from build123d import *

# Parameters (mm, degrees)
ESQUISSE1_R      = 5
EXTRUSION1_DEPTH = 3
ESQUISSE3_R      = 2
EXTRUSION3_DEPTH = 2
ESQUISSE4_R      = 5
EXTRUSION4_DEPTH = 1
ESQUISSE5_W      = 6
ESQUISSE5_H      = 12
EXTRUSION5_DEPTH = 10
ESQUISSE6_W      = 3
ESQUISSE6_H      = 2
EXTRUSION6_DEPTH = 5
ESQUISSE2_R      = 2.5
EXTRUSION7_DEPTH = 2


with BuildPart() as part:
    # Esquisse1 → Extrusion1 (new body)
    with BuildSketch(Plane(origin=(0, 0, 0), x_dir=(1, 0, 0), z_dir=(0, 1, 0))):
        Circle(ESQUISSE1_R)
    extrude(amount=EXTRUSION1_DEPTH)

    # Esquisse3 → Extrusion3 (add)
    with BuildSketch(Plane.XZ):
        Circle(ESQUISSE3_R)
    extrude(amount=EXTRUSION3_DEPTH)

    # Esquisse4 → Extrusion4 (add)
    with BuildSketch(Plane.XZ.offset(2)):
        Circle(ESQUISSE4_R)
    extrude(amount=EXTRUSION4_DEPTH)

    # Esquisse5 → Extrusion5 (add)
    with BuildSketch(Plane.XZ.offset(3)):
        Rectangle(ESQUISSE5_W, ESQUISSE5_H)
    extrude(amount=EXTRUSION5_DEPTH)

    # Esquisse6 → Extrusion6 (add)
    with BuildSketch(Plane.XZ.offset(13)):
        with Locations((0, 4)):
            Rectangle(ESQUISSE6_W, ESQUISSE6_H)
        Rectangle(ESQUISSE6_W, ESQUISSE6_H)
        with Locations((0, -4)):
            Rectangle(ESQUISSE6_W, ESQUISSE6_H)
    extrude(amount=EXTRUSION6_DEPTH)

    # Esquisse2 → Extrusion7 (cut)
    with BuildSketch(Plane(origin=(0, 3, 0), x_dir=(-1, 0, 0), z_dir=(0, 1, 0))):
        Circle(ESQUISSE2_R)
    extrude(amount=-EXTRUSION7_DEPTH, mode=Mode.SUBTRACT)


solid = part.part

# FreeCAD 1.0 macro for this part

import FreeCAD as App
import Part
import Sketcher

doc = App.newDocument("Part")
params = doc.addObject("Spreadsheet::Sheet", "Params")
for row, (alias, value) in enumerate([
    ("sketch1_diameter", "10 mm"),
    ("pad1_length", "3 mm"),
    ("sketch2_diameter", "4 mm"),
    ("pad2_length", "2 mm"),
    ("sketch3_diameter", "10 mm"),
    ("pad3_length", "1 mm"),
    ("sketch4_width", "6 mm"),
    ("sketch4_height", "12 mm"),
    ("pad4_length", "10 mm"),
    ("sketch5_width", "3 mm"),
    ("sketch5_height", "2 mm"),
    ("pad5_length", "5 mm"),
    ("sketch6_diameter", "5 mm"),
    ("pocket1_length", "2 mm"),
], start=1):
    params.set(f"A{row}", alias)
    params.set(f"B{row}", "=" + value)
    params.setAlias(f"B{row}", alias)

body = doc.addObject("PartDesign::Body", "Body")

sketch1 = doc.addObject("Sketcher::SketchObject", "Sketch")
body.addObject(sketch1)
sketch1.AttachmentSupport = (doc.XZ_Plane, [""])
sketch1.MapMode = "FlatFace"
sketch1.addGeometry(Part.Circle(App.Vector(0, 0, 0), App.Vector(0, 0, 1), 5), False)
sketch1.addConstraint(Sketcher.Constraint("Coincident", 0, 3, -1, 1))
sketch1.addConstraint(Sketcher.Constraint("Diameter", 0, 10.0))
sketch1.setExpression("Constraints[1]", "Params.sketch1_diameter")
pad1 = doc.addObject("PartDesign::Pad", "Pad")
body.addObject(pad1)
pad1.Profile = sketch1
pad1.setExpression("Length", "Params.pad1_length")
pad1.Reversed = True

sketch2 = doc.addObject("Sketcher::SketchObject", "Sketch001")
body.addObject(sketch2)
sketch2.AttachmentSupport = (doc.XZ_Plane, [""])
sketch2.MapMode = "FlatFace"
sketch2.addGeometry(Part.Circle(App.Vector(0, 0, 0), App.Vector(0, 0, 1), 2), False)
sketch2.addConstraint(Sketcher.Constraint("Coincident", 0, 3, -1, 1))
sketch2.addConstraint(Sketcher.Constraint("Diameter", 0, 4.0))
sketch2.setExpression("Constraints[1]", "Params.sketch2_diameter")
pad2 = doc.addObject("PartDesign::Pad", "Pad001")
body.addObject(pad2)
pad2.Profile = sketch2
pad2.setExpression("Length", "Params.pad2_length")

sketch3 = doc.addObject("Sketcher::SketchObject", "Sketch002")
body.addObject(sketch3)
sketch3.AttachmentSupport = (doc.XZ_Plane, [""])
sketch3.MapMode = "FlatFace"
sketch3.AttachmentOffset = App.Placement(App.Vector(0, 0, 2), App.Rotation())
sketch3.addGeometry(Part.Circle(App.Vector(0, 0, 0), App.Vector(0, 0, 1), 5), False)
sketch3.addConstraint(Sketcher.Constraint("Coincident", 0, 3, -1, 1))
sketch3.addConstraint(Sketcher.Constraint("Diameter", 0, 10.0))
sketch3.setExpression("Constraints[1]", "Params.sketch3_diameter")
pad3 = doc.addObject("PartDesign::Pad", "Pad002")
body.addObject(pad3)
pad3.Profile = sketch3
pad3.setExpression("Length", "Params.pad3_length")

sketch4 = doc.addObject("Sketcher::SketchObject", "Sketch003")
body.addObject(sketch4)
sketch4.AttachmentSupport = (doc.XZ_Plane, [""])
sketch4.MapMode = "FlatFace"
sketch4.AttachmentOffset = App.Placement(App.Vector(0, 0, 3), App.Rotation())
sketch4.addGeometry(Part.LineSegment(App.Vector(-3, 6, 0), App.Vector(-3, -6, 0)), False)
sketch4.addGeometry(Part.LineSegment(App.Vector(-3, -6, 0), App.Vector(3, -6, 0)), False)
sketch4.addGeometry(Part.LineSegment(App.Vector(3, -6, 0), App.Vector(3, 6, 0)), False)
sketch4.addGeometry(Part.LineSegment(App.Vector(3, 6, 0), App.Vector(-3, 6, 0)), False)
sketch4.addConstraint(Sketcher.Constraint("Coincident", 0, 2, 1, 1))
sketch4.addConstraint(Sketcher.Constraint("Coincident", 1, 2, 2, 1))
sketch4.addConstraint(Sketcher.Constraint("Coincident", 2, 2, 3, 1))
sketch4.addConstraint(Sketcher.Constraint("Coincident", 3, 2, 0, 1))
sketch4.addConstraint(Sketcher.Constraint("Vertical", 0))
sketch4.addConstraint(Sketcher.Constraint("Horizontal", 1))
sketch4.addConstraint(Sketcher.Constraint("Vertical", 2))
sketch4.addConstraint(Sketcher.Constraint("Horizontal", 3))
sketch4.addConstraint(Sketcher.Constraint("Symmetric", 0, 2, 2, 2, -1, 1))
sketch4.addConstraint(Sketcher.Constraint("DistanceX", 1, 1, 1, 2, 6.0))
sketch4.addConstraint(Sketcher.Constraint("DistanceY", 0, 2, 0, 1, 12.0))
sketch4.setExpression("Constraints[9]", "Params.sketch4_width")
sketch4.setExpression("Constraints[10]", "Params.sketch4_height")
pad4 = doc.addObject("PartDesign::Pad", "Pad003")
body.addObject(pad4)
pad4.Profile = sketch4
pad4.setExpression("Length", "Params.pad4_length")

sketch5 = doc.addObject("Sketcher::SketchObject", "Sketch004")
body.addObject(sketch5)
sketch5.AttachmentSupport = (doc.XZ_Plane, [""])
sketch5.MapMode = "FlatFace"
sketch5.AttachmentOffset = App.Placement(App.Vector(0, 0, 13), App.Rotation())
sketch5.addGeometry(Part.LineSegment(App.Vector(-1.5, 5, 0), App.Vector(-1.5, 3, 0)), False)
sketch5.addGeometry(Part.LineSegment(App.Vector(-1.5, 3, 0), App.Vector(1.5, 3, 0)), False)
sketch5.addGeometry(Part.LineSegment(App.Vector(1.5, 3, 0), App.Vector(1.5, 5, 0)), False)
sketch5.addGeometry(Part.LineSegment(App.Vector(1.5, 5, 0), App.Vector(-1.5, 5, 0)), False)
sketch5.addGeometry(Part.LineSegment(App.Vector(-1.5, 1, 0), App.Vector(-1.5, -1, 0)), False)
sketch5.addGeometry(Part.LineSegment(App.Vector(-1.5, -1, 0), App.Vector(1.5, -1, 0)), False)
sketch5.addGeometry(Part.LineSegment(App.Vector(1.5, -1, 0), App.Vector(1.5, 1, 0)), False)
sketch5.addGeometry(Part.LineSegment(App.Vector(1.5, 1, 0), App.Vector(-1.5, 1, 0)), False)
sketch5.addGeometry(Part.LineSegment(App.Vector(-1.5, -3, 0), App.Vector(-1.5, -5, 0)), False)
sketch5.addGeometry(Part.LineSegment(App.Vector(-1.5, -5, 0), App.Vector(1.5, -5, 0)), False)
sketch5.addGeometry(Part.LineSegment(App.Vector(1.5, -5, 0), App.Vector(1.5, -3, 0)), False)
sketch5.addGeometry(Part.LineSegment(App.Vector(1.5, -3, 0), App.Vector(-1.5, -3, 0)), False)
sketch5.addConstraint(Sketcher.Constraint("Coincident", 0, 2, 1, 1))
sketch5.addConstraint(Sketcher.Constraint("Coincident", 1, 2, 2, 1))
sketch5.addConstraint(Sketcher.Constraint("Coincident", 2, 2, 3, 1))
sketch5.addConstraint(Sketcher.Constraint("Coincident", 3, 2, 0, 1))
sketch5.addConstraint(Sketcher.Constraint("Coincident", 4, 2, 5, 1))
sketch5.addConstraint(Sketcher.Constraint("Coincident", 5, 2, 6, 1))
sketch5.addConstraint(Sketcher.Constraint("Coincident", 6, 2, 7, 1))
sketch5.addConstraint(Sketcher.Constraint("Coincident", 7, 2, 4, 1))
sketch5.addConstraint(Sketcher.Constraint("Coincident", 8, 2, 9, 1))
sketch5.addConstraint(Sketcher.Constraint("Coincident", 9, 2, 10, 1))
sketch5.addConstraint(Sketcher.Constraint("Coincident", 10, 2, 11, 1))
sketch5.addConstraint(Sketcher.Constraint("Coincident", 11, 2, 8, 1))
sketch5.addConstraint(Sketcher.Constraint("Vertical", 0))
sketch5.addConstraint(Sketcher.Constraint("Horizontal", 1))
sketch5.addConstraint(Sketcher.Constraint("Vertical", 2))
sketch5.addConstraint(Sketcher.Constraint("Horizontal", 3))
sketch5.addConstraint(Sketcher.Constraint("Vertical", 4))
sketch5.addConstraint(Sketcher.Constraint("Horizontal", 5))
sketch5.addConstraint(Sketcher.Constraint("Vertical", 6))
sketch5.addConstraint(Sketcher.Constraint("Horizontal", 7))
sketch5.addConstraint(Sketcher.Constraint("Vertical", 8))
sketch5.addConstraint(Sketcher.Constraint("Horizontal", 9))
sketch5.addConstraint(Sketcher.Constraint("Vertical", 10))
sketch5.addConstraint(Sketcher.Constraint("Horizontal", 11))
sketch5.addConstraint(Sketcher.Constraint("Symmetric", 4, 2, 6, 2, -1, 1))
sketch5.addConstraint(Sketcher.Constraint("Symmetric", 2, 2, 8, 2, -1, 1))
sketch5.addConstraint(Sketcher.Constraint("Symmetric", 0, 2, 10, 2, -1, 1))
sketch5.addConstraint(Sketcher.Constraint("Vertical", 3, 2, 4, 2))
sketch5.addConstraint(Sketcher.Constraint("Vertical", 2, 2, 5, 2))
sketch5.addConstraint(Sketcher.Constraint("Equal", 2, 4))
sketch5.addConstraint(Sketcher.Constraint("DistanceX", 1, 1, 1, 2, 3.0))
sketch5.addConstraint(Sketcher.Constraint("DistanceY", 0, 2, 0, 1, 2.0))
sketch5.addConstraint(Sketcher.Constraint("DistanceY", -1, 1, 0, 2, 3.0))
sketch5.setExpression("Constraints[30]", "Params.sketch5_width")
sketch5.setExpression("Constraints[31]", "Params.sketch5_height")
pad5 = doc.addObject("PartDesign::Pad", "Pad004")
body.addObject(pad5)
pad5.Profile = sketch5
pad5.setExpression("Length", "Params.pad5_length")

sketch6 = doc.addObject("Sketcher::SketchObject", "Sketch005")
body.addObject(sketch6)
sketch6.AttachmentSupport = (doc.XZ_Plane, [""])
sketch6.MapMode = "FlatFace"
sketch6.AttachmentOffset = App.Placement(App.Vector(0, 0, -3), App.Rotation())
sketch6.addGeometry(Part.Circle(App.Vector(0, 0, 0), App.Vector(0, 0, 1), 2.5), False)
sketch6.addConstraint(Sketcher.Constraint("Coincident", 0, 3, -1, 1))
sketch6.addConstraint(Sketcher.Constraint("Diameter", 0, 5.0))
sketch6.setExpression("Constraints[1]", "Params.sketch6_diameter")
pocket1 = doc.addObject("PartDesign::Pocket", "Pocket")
body.addObject(pocket1)
pocket1.Profile = sketch6
pocket1.setExpression("Length", "Params.pocket1_length")
pocket1.Reversed = True

doc.recompute()
